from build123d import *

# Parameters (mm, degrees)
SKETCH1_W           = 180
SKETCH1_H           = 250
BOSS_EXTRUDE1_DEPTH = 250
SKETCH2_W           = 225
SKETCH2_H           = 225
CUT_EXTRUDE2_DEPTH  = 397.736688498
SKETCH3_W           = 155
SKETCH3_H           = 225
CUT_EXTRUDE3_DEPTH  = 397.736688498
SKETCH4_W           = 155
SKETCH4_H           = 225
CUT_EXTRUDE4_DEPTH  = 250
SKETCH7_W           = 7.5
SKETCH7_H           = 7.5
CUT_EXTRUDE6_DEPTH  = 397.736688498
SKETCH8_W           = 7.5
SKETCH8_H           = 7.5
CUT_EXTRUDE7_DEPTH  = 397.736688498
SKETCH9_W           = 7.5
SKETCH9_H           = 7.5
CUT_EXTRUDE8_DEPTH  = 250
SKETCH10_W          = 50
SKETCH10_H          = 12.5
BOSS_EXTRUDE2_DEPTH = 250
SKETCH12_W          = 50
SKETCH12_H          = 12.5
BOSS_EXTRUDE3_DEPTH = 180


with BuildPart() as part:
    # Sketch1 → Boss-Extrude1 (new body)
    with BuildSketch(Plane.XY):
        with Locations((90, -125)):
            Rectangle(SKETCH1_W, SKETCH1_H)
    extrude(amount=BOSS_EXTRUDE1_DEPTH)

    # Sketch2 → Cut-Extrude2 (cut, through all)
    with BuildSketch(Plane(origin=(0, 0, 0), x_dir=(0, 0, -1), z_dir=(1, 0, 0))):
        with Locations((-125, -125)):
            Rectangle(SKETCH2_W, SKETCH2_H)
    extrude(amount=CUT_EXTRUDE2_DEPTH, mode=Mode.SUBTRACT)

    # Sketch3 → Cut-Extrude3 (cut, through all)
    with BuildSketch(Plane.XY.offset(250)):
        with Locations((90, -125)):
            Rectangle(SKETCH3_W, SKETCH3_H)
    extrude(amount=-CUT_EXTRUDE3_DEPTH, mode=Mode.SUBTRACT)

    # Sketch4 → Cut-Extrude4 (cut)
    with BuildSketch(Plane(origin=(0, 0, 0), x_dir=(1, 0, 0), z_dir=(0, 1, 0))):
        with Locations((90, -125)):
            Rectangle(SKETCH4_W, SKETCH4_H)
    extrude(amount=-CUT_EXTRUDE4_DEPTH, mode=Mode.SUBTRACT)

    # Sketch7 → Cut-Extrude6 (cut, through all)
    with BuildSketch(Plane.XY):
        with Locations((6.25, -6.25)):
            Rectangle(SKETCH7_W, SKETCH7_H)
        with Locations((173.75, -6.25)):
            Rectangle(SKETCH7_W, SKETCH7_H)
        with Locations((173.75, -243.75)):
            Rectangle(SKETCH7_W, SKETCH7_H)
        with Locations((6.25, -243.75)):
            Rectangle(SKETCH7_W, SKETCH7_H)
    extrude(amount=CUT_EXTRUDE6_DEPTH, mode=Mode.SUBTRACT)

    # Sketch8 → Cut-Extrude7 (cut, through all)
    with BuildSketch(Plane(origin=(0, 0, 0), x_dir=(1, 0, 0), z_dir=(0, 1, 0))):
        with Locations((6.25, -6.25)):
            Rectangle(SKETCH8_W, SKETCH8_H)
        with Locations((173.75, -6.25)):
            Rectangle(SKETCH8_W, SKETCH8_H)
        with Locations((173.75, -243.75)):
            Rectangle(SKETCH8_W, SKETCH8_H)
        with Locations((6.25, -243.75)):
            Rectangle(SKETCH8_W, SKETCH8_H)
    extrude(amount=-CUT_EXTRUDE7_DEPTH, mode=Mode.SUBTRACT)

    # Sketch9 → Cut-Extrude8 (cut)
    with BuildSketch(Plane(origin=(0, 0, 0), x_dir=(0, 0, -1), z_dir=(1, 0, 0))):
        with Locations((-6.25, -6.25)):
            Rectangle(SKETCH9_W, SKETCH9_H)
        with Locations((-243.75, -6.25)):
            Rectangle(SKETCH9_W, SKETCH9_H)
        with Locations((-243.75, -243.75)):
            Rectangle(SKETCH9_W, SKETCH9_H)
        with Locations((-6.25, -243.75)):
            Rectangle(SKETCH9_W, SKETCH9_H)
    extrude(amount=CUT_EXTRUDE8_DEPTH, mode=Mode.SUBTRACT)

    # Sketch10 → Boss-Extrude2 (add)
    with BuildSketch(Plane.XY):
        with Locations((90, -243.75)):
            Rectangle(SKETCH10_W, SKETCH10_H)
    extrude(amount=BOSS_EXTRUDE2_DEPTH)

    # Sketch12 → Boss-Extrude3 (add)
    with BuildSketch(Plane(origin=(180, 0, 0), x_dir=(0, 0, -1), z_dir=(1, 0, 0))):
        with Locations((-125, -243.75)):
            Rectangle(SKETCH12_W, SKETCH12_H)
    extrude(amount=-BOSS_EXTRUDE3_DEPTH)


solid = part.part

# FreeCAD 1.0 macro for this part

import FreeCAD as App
import Part
import Sketcher
from FreeCAD import Vector


def add_polygon(sketch, points):
    """Adds a closed chain of lines whose ends are joined by coincident constraints."""
    first, n = sketch.GeometryCount, len(points)
    for a, b in zip(points, points[1:] + points[:1]):
        sketch.addGeometry(Part.LineSegment(App.Vector(*a, 0), App.Vector(*b, 0)), False)
    for i in range(n):
        sketch.addConstraint(Sketcher.Constraint("Coincident", first + i, 2, first + (i + 1) % n, 1))

doc = App.newDocument("Part")
body = doc.addObject("PartDesign::Body", "Body")

# Sketch on XY plane
sketch1 = doc.addObject("Sketcher::SketchObject", "Sketch")
body.addObject(sketch1)
sketch1.AttachmentSupport = (doc.XY_Plane, [""])
sketch1.MapMode = "FlatFace"
add_polygon(sketch1, [(0, 0), (0, -250), (180, -250), (180, 0)])  # lines 0-3
sketch1.addConstraint(Sketcher.Constraint("Vertical", 0))
sketch1.addConstraint(Sketcher.Constraint("Horizontal", 1))
sketch1.addConstraint(Sketcher.Constraint("Vertical", 2))
sketch1.addConstraint(Sketcher.Constraint("Horizontal", 3))
sketch1.addConstraint(Sketcher.Constraint("Coincident", 3, 2, -1, 1))
sketch1.addConstraint(Sketcher.Constraint("DistanceX", 1, 1, 1, 2, 180.0))
sketch1.addConstraint(Sketcher.Constraint("DistanceY", 0, 2, 0, 1, 250.0))
pad1 = doc.addObject("PartDesign::Pad", "Pad")
body.addObject(pad1)
pad1.Profile = sketch1
pad1.Length = 250

# Sketch on YZ plane
sketch2 = doc.addObject("Sketcher::SketchObject", "Sketch001")
body.addObject(sketch2)
sketch2.AttachmentSupport = (doc.YZ_Plane, [""])
sketch2.MapMode = "FlatFace"
add_polygon(sketch2, [(-12, 238), (-238, 238), (-238, 12), (-12, 12)])  # lines 0-3
sketch2.addConstraint(Sketcher.Constraint("Horizontal", 0))
sketch2.addConstraint(Sketcher.Constraint("Vertical", 1))
sketch2.addConstraint(Sketcher.Constraint("Horizontal", 2))
sketch2.addConstraint(Sketcher.Constraint("Vertical", 3))
sketch2.addConstraint(Sketcher.Constraint("Equal", 2, 1))
sketch2.addConstraint(Sketcher.Constraint("DistanceX", 0, 2, 0, 1, 225.0))
sketch2.addConstraint(Sketcher.Constraint("DistanceX", 0, 2, -1, 1, 237.5))
sketch2.addConstraint(Sketcher.Constraint("DistanceY", -1, 1, 0, 2, 237.5))
pocket1 = doc.addObject("PartDesign::Pocket", "Pocket")
body.addObject(pocket1)
pocket1.Profile = sketch2
pocket1.Type = "ThroughAll"
pocket1.Reversed = True

# Sketch on XY plane
sketch3 = doc.addObject("Sketcher::SketchObject", "Sketch002")
body.addObject(sketch3)
sketch3.AttachmentSupport = (doc.XY_Plane, [""])
sketch3.MapMode = "FlatFace"
sketch3.AttachmentOffset = App.Placement(Vector(0, 0, 250), App.Rotation())
add_polygon(sketch3, [(12, -12), (12, -238), (168, -238), (168, -12)])  # lines 0-3
sketch3.addConstraint(Sketcher.Constraint("Vertical", 0))
sketch3.addConstraint(Sketcher.Constraint("Horizontal", 1))
sketch3.addConstraint(Sketcher.Constraint("Vertical", 2))
sketch3.addConstraint(Sketcher.Constraint("Horizontal", 3))
sketch3.addConstraint(Sketcher.Constraint("DistanceX", 1, 1, 1, 2, 155.0))
sketch3.addConstraint(Sketcher.Constraint("DistanceY", 0, 2, 0, 1, 225.0))
sketch3.addConstraint(Sketcher.Constraint("DistanceX", -1, 1, 0, 2, 12.5))
sketch3.addConstraint(Sketcher.Constraint("DistanceY", 0, 2, -1, 1, 237.5))
pocket2 = doc.addObject("PartDesign::Pocket", "Pocket001")
body.addObject(pocket2)
pocket2.Profile = sketch3
pocket2.Type = "ThroughAll"

# Sketch on XZ plane
sketch4 = doc.addObject("Sketcher::SketchObject", "Sketch003")
body.addObject(sketch4)
sketch4.AttachmentSupport = (doc.XZ_Plane, [""])
sketch4.MapMode = "FlatFace"
add_polygon(sketch4, [(12, 12), (12, 238), (168, 238), (168, 12)])  # lines 0-3
sketch4.addConstraint(Sketcher.Constraint("Vertical", 0))
sketch4.addConstraint(Sketcher.Constraint("Horizontal", 1))
sketch4.addConstraint(Sketcher.Constraint("Vertical", 2))
sketch4.addConstraint(Sketcher.Constraint("Horizontal", 3))
sketch4.addConstraint(Sketcher.Constraint("DistanceX", 1, 1, 1, 2, 155.0))
sketch4.addConstraint(Sketcher.Constraint("DistanceY", 0, 1, 0, 2, 225.0))
sketch4.addConstraint(Sketcher.Constraint("DistanceX", -1, 1, 0, 2, 12.5))
sketch4.addConstraint(Sketcher.Constraint("DistanceY", -1, 1, 0, 2, 237.5))
pocket3 = doc.addObject("PartDesign::Pocket", "Pocket002")
body.addObject(pocket3)
pocket3.Profile = sketch4
pocket3.Length = 250
pocket3.Reversed = True

# Sketch on XY plane
sketch5 = doc.addObject("Sketcher::SketchObject", "Sketch004")
body.addObject(sketch5)
sketch5.AttachmentSupport = (doc.XY_Plane, [""])
sketch5.MapMode = "FlatFace"
add_polygon(sketch5, [(2, -2), (2, -10), (10, -10), (10, -2)])  # lines 0-3
add_polygon(sketch5, [(170, -2), (170, -10), (178, -10), (178, -2)])  # lines 4-7
add_polygon(sketch5, [(170, -240), (170, -248), (178, -248), (178, -240)])  # lines 8-11
add_polygon(sketch5, [(2, -240), (2, -248), (10, -248), (10, -240)])  # lines 12-15
sketch5.addConstraint(Sketcher.Constraint("Vertical", 0))
sketch5.addConstraint(Sketcher.Constraint("Horizontal", 1))
sketch5.addConstraint(Sketcher.Constraint("Vertical", 2))
sketch5.addConstraint(Sketcher.Constraint("Horizontal", 3))
sketch5.addConstraint(Sketcher.Constraint("Vertical", 4))
sketch5.addConstraint(Sketcher.Constraint("Horizontal", 5))
sketch5.addConstraint(Sketcher.Constraint("Vertical", 6))
sketch5.addConstraint(Sketcher.Constraint("Horizontal", 7))
sketch5.addConstraint(Sketcher.Constraint("Vertical", 8))
sketch5.addConstraint(Sketcher.Constraint("Horizontal", 9))
sketch5.addConstraint(Sketcher.Constraint("Vertical", 10))
sketch5.addConstraint(Sketcher.Constraint("Horizontal", 11))
sketch5.addConstraint(Sketcher.Constraint("Vertical", 12))
sketch5.addConstraint(Sketcher.Constraint("Horizontal", 13))
sketch5.addConstraint(Sketcher.Constraint("Vertical", 14))
sketch5.addConstraint(Sketcher.Constraint("Horizontal", 15))
sketch5.addConstraint(Sketcher.Constraint("Horizontal", 1, 2, 4, 2))
sketch5.addConstraint(Sketcher.Constraint("Horizontal", 3, 2, 6, 2))
sketch5.addConstraint(Sketcher.Constraint("Horizontal", 9, 2, 12, 2))
sketch5.addConstraint(Sketcher.Constraint("Horizontal", 11, 2, 14, 2))
sketch5.addConstraint(Sketcher.Constraint("Vertical", 7, 2, 8, 2))
sketch5.addConstraint(Sketcher.Constraint("Vertical", 6, 2, 9, 2))
sketch5.addConstraint(Sketcher.Constraint("Vertical", 3, 2, 12, 2))
sketch5.addConstraint(Sketcher.Constraint("Vertical", 2, 2, 13, 2))
sketch5.addConstraint(Sketcher.Constraint("Equal", 3, 5))
sketch5.addConstraint(Sketcher.Constraint("Equal", 15, 0))
sketch5.addConstraint(Sketcher.Constraint("Equal", 6, 8))
sketch5.addConstraint(Sketcher.Constraint("DistanceX", 1, 1, 1, 2, 7.5))
sketch5.addConstraint(Sketcher.Constraint("DistanceY", 0, 2, -1, 1, 10.0))
sketch5.addConstraint(Sketcher.Constraint("DistanceX", -1, 1, 1, 2, 10.0))
sketch5.addConstraint(Sketcher.Constraint("DistanceX", -1, 1, 4, 2, 170.0))
sketch5.addConstraint(Sketcher.Constraint("DistanceY", 10, 2, -1, 1, 240.0))
pocket4 = doc.addObject("PartDesign::Pocket", "Pocket003")
body.addObject(pocket4)
pocket4.Profile = sketch5
pocket4.Type = "ThroughAll"
pocket4.Reversed = True

# Sketch on XZ plane
sketch6 = doc.addObject("Sketcher::SketchObject", "Sketch005")
body.addObject(sketch6)
sketch6.AttachmentSupport = (doc.XZ_Plane, [""])
sketch6.MapMode = "FlatFace"
add_polygon(sketch6, [(2, 2), (2, 10), (10, 10), (10, 2)])  # lines 0-3
add_polygon(sketch6, [(170, 2), (170, 10), (178, 10), (178, 2)])  # lines 4-7
add_polygon(sketch6, [(170, 240), (170, 248), (178, 248), (178, 240)])  # lines 8-11
add_polygon(sketch6, [(2, 240), (2, 248), (10, 248), (10, 240)])  # lines 12-15
sketch6.addConstraint(Sketcher.Constraint("Vertical", 0))
sketch6.addConstraint(Sketcher.Constraint("Horizontal", 1))
sketch6.addConstraint(Sketcher.Constraint("Vertical", 2))
sketch6.addConstraint(Sketcher.Constraint("Horizontal", 3))
sketch6.addConstraint(Sketcher.Constraint("Vertical", 4))
sketch6.addConstraint(Sketcher.Constraint("Horizontal", 5))
sketch6.addConstraint(Sketcher.Constraint("Vertical", 6))
sketch6.addConstraint(Sketcher.Constraint("Horizontal", 7))
sketch6.addConstraint(Sketcher.Constraint("Vertical", 8))
sketch6.addConstraint(Sketcher.Constraint("Horizontal", 9))
sketch6.addConstraint(Sketcher.Constraint("Vertical", 10))
sketch6.addConstraint(Sketcher.Constraint("Horizontal", 11))
sketch6.addConstraint(Sketcher.Constraint("Vertical", 12))
sketch6.addConstraint(Sketcher.Constraint("Horizontal", 13))
sketch6.addConstraint(Sketcher.Constraint("Vertical", 14))
sketch6.addConstraint(Sketcher.Constraint("Horizontal", 15))
sketch6.addConstraint(Sketcher.Constraint("Horizontal", 1, 2, 4, 2))
sketch6.addConstraint(Sketcher.Constraint("Horizontal", 3, 2, 6, 2))
sketch6.addConstraint(Sketcher.Constraint("Horizontal", 9, 2, 12, 2))
sketch6.addConstraint(Sketcher.Constraint("Horizontal", 11, 2, 14, 2))
sketch6.addConstraint(Sketcher.Constraint("Vertical", 7, 2, 8, 2))
sketch6.addConstraint(Sketcher.Constraint("Vertical", 6, 2, 9, 2))
sketch6.addConstraint(Sketcher.Constraint("Vertical", 3, 2, 12, 2))
sketch6.addConstraint(Sketcher.Constraint("Vertical", 2, 2, 13, 2))
sketch6.addConstraint(Sketcher.Constraint("Equal", 3, 5))
sketch6.addConstraint(Sketcher.Constraint("Equal", 15, 0))
sketch6.addConstraint(Sketcher.Constraint("Equal", 6, 8))
sketch6.addConstraint(Sketcher.Constraint("DistanceX", 1, 1, 1, 2, 7.5))
sketch6.addConstraint(Sketcher.Constraint("DistanceY", -1, 1, 0, 2, 10.0))
sketch6.addConstraint(Sketcher.Constraint("DistanceX", -1, 1, 1, 2, 10.0))
sketch6.addConstraint(Sketcher.Constraint("DistanceX", -1, 1, 4, 2, 170.0))
sketch6.addConstraint(Sketcher.Constraint("DistanceY", -1, 1, 10, 2, 240.0))
pocket5 = doc.addObject("PartDesign::Pocket", "Pocket004")
body.addObject(pocket5)
pocket5.Profile = sketch6
pocket5.Type = "ThroughAll"
pocket5.Reversed = True

# Sketch on YZ plane
sketch7 = doc.addObject("Sketcher::SketchObject", "Sketch006")
body.addObject(sketch7)
sketch7.AttachmentSupport = (doc.YZ_Plane, [""])
sketch7.MapMode = "FlatFace"
add_polygon(sketch7, [(-2, 10), (-10, 10), (-10, 2), (-2, 2)])  # lines 0-3
add_polygon(sketch7, [(-2, 248), (-10, 248), (-10, 240), (-2, 240)])  # lines 4-7
add_polygon(sketch7, [(-240, 248), (-248, 248), (-248, 240), (-240, 240)])  # lines 8-11
add_polygon(sketch7, [(-240, 10), (-248, 10), (-248, 2), (-240, 2)])  # lines 12-15
sketch7.addConstraint(Sketcher.Constraint("Horizontal", 0))
sketch7.addConstraint(Sketcher.Constraint("Vertical", 1))
sketch7.addConstraint(Sketcher.Constraint("Horizontal", 2))
sketch7.addConstraint(Sketcher.Constraint("Vertical", 3))
sketch7.addConstraint(Sketcher.Constraint("Horizontal", 4))
sketch7.addConstraint(Sketcher.Constraint("Vertical", 5))
sketch7.addConstraint(Sketcher.Constraint("Horizontal", 6))
sketch7.addConstraint(Sketcher.Constraint("Vertical", 7))
sketch7.addConstraint(Sketcher.Constraint("Horizontal", 8))
sketch7.addConstraint(Sketcher.Constraint("Vertical", 9))
sketch7.addConstraint(Sketcher.Constraint("Horizontal", 10))
sketch7.addConstraint(Sketcher.Constraint("Vertical", 11))
sketch7.addConstraint(Sketcher.Constraint("Horizontal", 12))
sketch7.addConstraint(Sketcher.Constraint("Vertical", 13))
sketch7.addConstraint(Sketcher.Constraint("Horizontal", 14))
sketch7.addConstraint(Sketcher.Constraint("Vertical", 15))
sketch7.addConstraint(Sketcher.Constraint("Horizontal", 7, 2, 8, 2))
sketch7.addConstraint(Sketcher.Constraint("Horizontal", 6, 2, 9, 2))
sketch7.addConstraint(Sketcher.Constraint("Horizontal", 3, 2, 12, 2))
sketch7.addConstraint(Sketcher.Constraint("Horizontal", 2, 2, 13, 2))
sketch7.addConstraint(Sketcher.Constraint("Vertical", 1, 2, 4, 2))
sketch7.addConstraint(Sketcher.Constraint("Vertical", 3, 2, 6, 2))
sketch7.addConstraint(Sketcher.Constraint("Vertical", 9, 2, 12, 2))
sketch7.addConstraint(Sketcher.Constraint("Vertical", 11, 2, 14, 2))
sketch7.addConstraint(Sketcher.Constraint("Equal", 6, 8))
sketch7.addConstraint(Sketcher.Constraint("Equal", 14, 1))
sketch7.addConstraint(Sketcher.Constraint("Equal", 3, 5))
sketch7.addConstraint(Sketcher.Constraint("DistanceX", 0, 2, 0, 1, 7.5))
sketch7.addConstraint(Sketcher.Constraint("DistanceX", 0, 2, -1, 1, 10.0))
sketch7.addConstraint(Sketcher.Constraint("DistanceY", -1, 1, 0, 2, 10.0))
sketch7.addConstraint(Sketcher.Constraint("DistanceY", -1, 1, 5, 2, 240.0))
sketch7.addConstraint(Sketcher.Constraint("DistanceX", 10, 2, -1, 1, 240.0))
pocket6 = doc.addObject("PartDesign::Pocket", "Pocket005")
body.addObject(pocket6)
pocket6.Profile = sketch7
pocket6.Length = 250
pocket6.Reversed = True

# Sketch on XY plane
sketch8 = doc.addObject("Sketcher::SketchObject", "Sketch007")
body.addObject(sketch8)
sketch8.AttachmentSupport = (doc.XY_Plane, [""])
sketch8.MapMode = "FlatFace"
add_polygon(sketch8, [(65, -238), (65, -250), (115, -250), (115, -238)])  # lines 0-3
sketch8.addConstraint(Sketcher.Constraint("Vertical", 0))
sketch8.addConstraint(Sketcher.Constraint("Horizontal", 1))
sketch8.addConstraint(Sketcher.Constraint("Vertical", 2))
sketch8.addConstraint(Sketcher.Constraint("Horizontal", 3))
sketch8.addConstraint(Sketcher.Constraint("DistanceX", 1, 1, 1, 2, 50.0))
sketch8.addConstraint(Sketcher.Constraint("DistanceY", 0, 2, 0, 1, 12.5))
sketch8.addConstraint(Sketcher.Constraint("DistanceX", -1, 1, 0, 2, 65.0))
sketch8.addConstraint(Sketcher.Constraint("DistanceY", 0, 2, -1, 1, 250.0))
pad2 = doc.addObject("PartDesign::Pad", "Pad001")
body.addObject(pad2)
pad2.Profile = sketch8
pad2.Length = 250

# Sketch on YZ plane
sketch9 = doc.addObject("Sketcher::SketchObject", "Sketch008")
body.addObject(sketch9)
sketch9.AttachmentSupport = (doc.YZ_Plane, [""])
sketch9.MapMode = "FlatFace"
sketch9.AttachmentOffset = App.Placement(Vector(0, 0, 180), App.Rotation())
add_polygon(sketch9, [(-238, 150), (-250, 150), (-250, 100), (-238, 100)])  # lines 0-3
sketch9.addConstraint(Sketcher.Constraint("Horizontal", 0))
sketch9.addConstraint(Sketcher.Constraint("Vertical", 1))
sketch9.addConstraint(Sketcher.Constraint("Horizontal", 2))
sketch9.addConstraint(Sketcher.Constraint("Vertical", 3))
sketch9.addConstraint(Sketcher.Constraint("DistanceY", 1, 2, 1, 1, 50.0))
sketch9.addConstraint(Sketcher.Constraint("DistanceX", 0, 2, 0, 1, 12.5))
sketch9.addConstraint(Sketcher.Constraint("DistanceX", 0, 2, -1, 1, 250.0))
sketch9.addConstraint(Sketcher.Constraint("DistanceY", -1, 1, 0, 2, 150.0))
pad3 = doc.addObject("PartDesign::Pad", "Pad002")
body.addObject(pad3)
pad3.Profile = sketch9
pad3.Length = 180
pad3.Reversed = True

doc.recompute()
